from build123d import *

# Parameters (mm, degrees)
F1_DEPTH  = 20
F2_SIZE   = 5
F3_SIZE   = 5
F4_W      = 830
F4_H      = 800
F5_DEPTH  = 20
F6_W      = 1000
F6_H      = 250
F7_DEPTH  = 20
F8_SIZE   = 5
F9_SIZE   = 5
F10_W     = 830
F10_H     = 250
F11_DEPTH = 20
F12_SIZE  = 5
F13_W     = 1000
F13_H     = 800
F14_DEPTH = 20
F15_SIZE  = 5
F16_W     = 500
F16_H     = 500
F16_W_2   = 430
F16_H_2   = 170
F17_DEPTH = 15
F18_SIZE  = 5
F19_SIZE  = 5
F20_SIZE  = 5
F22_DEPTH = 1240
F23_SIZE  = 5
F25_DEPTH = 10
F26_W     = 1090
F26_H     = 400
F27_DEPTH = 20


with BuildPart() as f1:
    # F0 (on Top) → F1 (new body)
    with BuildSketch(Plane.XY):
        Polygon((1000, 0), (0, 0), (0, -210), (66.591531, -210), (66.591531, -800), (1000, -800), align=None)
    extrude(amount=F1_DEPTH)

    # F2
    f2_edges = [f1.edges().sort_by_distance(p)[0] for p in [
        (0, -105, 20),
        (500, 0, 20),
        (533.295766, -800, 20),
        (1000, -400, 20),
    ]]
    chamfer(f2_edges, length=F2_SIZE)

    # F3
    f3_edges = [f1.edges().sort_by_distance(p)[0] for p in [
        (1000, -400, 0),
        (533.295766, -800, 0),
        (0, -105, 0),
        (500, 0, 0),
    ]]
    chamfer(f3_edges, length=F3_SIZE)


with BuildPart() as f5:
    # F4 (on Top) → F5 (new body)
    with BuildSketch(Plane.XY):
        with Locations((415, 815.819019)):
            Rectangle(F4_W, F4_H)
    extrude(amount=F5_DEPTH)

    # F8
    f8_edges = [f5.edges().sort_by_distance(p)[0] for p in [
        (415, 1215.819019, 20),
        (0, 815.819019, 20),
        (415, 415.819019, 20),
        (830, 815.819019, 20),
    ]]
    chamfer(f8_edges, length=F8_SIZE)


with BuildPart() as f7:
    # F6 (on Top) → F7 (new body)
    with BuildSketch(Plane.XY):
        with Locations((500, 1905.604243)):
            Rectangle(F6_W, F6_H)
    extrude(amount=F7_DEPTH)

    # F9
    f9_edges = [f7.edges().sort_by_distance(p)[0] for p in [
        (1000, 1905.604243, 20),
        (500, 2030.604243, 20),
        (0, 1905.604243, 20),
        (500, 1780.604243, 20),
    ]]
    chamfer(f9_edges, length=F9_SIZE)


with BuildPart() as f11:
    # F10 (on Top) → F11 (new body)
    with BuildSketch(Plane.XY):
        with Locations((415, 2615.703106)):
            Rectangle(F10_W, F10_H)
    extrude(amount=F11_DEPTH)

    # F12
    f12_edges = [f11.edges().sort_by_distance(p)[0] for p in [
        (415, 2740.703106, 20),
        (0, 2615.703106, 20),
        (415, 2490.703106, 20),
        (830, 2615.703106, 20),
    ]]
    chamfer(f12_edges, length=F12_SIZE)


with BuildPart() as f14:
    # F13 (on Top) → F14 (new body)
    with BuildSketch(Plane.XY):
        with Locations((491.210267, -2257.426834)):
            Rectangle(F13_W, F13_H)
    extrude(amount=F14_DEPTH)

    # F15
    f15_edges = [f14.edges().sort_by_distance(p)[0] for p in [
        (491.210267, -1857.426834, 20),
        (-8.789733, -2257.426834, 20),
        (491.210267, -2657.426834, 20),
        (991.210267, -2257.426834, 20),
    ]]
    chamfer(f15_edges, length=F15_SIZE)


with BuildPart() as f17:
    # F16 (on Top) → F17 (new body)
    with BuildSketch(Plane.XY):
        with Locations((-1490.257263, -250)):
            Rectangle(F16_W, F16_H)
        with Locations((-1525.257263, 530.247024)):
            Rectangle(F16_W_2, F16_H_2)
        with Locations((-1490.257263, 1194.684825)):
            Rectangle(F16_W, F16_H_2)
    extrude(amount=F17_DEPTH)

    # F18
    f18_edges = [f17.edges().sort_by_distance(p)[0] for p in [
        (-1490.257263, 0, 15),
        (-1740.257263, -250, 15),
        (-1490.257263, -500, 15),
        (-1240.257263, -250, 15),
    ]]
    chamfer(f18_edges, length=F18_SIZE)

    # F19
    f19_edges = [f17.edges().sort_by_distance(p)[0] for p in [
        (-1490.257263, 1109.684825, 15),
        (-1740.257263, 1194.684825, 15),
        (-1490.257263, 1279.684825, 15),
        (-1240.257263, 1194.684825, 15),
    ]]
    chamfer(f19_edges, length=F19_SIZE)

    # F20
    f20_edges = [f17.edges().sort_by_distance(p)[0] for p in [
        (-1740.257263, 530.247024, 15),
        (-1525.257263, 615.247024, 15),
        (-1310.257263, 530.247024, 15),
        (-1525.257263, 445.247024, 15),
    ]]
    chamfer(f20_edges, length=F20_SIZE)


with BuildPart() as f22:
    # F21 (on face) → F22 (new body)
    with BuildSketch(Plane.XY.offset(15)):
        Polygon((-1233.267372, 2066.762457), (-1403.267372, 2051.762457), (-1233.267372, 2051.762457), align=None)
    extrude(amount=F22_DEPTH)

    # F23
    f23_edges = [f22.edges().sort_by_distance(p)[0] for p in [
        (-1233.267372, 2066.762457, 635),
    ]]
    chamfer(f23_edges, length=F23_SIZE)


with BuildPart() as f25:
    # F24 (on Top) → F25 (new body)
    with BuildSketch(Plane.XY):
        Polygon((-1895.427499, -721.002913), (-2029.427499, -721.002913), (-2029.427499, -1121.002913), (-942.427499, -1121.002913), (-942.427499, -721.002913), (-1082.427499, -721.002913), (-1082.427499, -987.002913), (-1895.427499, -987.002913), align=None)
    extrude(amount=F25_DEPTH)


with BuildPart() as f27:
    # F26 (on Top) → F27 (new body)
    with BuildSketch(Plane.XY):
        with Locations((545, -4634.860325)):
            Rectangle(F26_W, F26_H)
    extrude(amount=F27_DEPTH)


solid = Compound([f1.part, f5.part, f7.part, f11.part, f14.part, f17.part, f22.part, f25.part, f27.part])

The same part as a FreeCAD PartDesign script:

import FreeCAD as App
import Part
import Sketcher

V = App.Vector


def edges_at(feature, points):
    """Names of the edges that pass closest to the given points."""
    edges = feature.Shape.Edges
    near = lambda p: min(range(len(edges)), key=lambda i: edges[i].distToShape(Part.Vertex(*p))[0])
    return sorted({f"Edge{near(p) + 1}" for p in points})


def add_polygon(sketch, points):
    """Adds a closed chain of lines whose ends are joined by coincident constraints."""
    first, n = sketch.GeometryCount, len(points)
    for a, b in zip(points, points[1:] + points[:1]):
        sketch.addGeometry(Part.LineSegment(App.Vector(*a, 0), App.Vector(*b, 0)), False)
    for i in range(n):
        sketch.addConstraint(Sketcher.Constraint("Coincident", first + i, 2, first + (i + 1) % n, 1))

doc = App.newDocument("Part")
params = doc.addObject("Spreadsheet::Sheet", "Params")
for row, (alias, value) in enumerate([
    ("sketch1_width", "1000 mm"),
    ("sketch1_height", "210 mm"),
    ("sketch1_height2", "590 mm"),
    ("pad1_length", "20 mm"),
    ("chamfer_size", "5 mm"),
    ("chamfer2_size", "5 mm"),
    ("sketch2_width", "830 mm"),
    ("sketch2_height", "800 mm"),
    ("pad2_length", "20 mm"),
    ("chamfer3_size", "5 mm"),
    ("sketch3_width", "1000 mm"),
    ("sketch3_height", "250 mm"),
    ("pad3_length", "20 mm"),
    ("chamfer4_size", "5 mm"),
    ("sketch4_width", "830 mm"),
    ("sketch4_height", "250 mm"),
    ("pad4_length", "20 mm"),
    ("chamfer5_size", "5 mm"),
    ("sketch5_width", "1000 mm"),
    ("sketch5_height", "800 mm"),
    ("pad5_length", "20 mm"),
    ("chamfer6_size", "5 mm"),
    ("sketch6_width", "500 mm"),
    ("sketch6_width2", "430 mm"),
    ("sketch6_height", "170 mm"),
    ("pad6_length", "15 mm"),
    ("chamfer7_size", "5 mm"),
    ("chamfer8_size", "5 mm"),
    ("chamfer9_size", "5 mm"),
    ("sketch7_width", "170 mm"),
    ("sketch7_height", "15 mm"),
    ("pad7_length", "1240 mm"),
    ("chamfer10_size", "5 mm"),
    ("sketch8_width", "134 mm"),
    ("sketch8_width2", "1087 mm"),
    ("sketch8_width3", "140 mm"),
    ("sketch8_height", "400 mm"),
    ("sketch8_height2", "266 mm"),
    ("pad8_length", "10 mm"),
    ("sketch9_width", "1090 mm"),
    ("sketch9_height", "400 mm"),
    ("pad9_length", "20 mm"),
], start=1):
    params.set(f"A{row}", alias)
    params.set(f"B{row}", "=" + value)
    params.setAlias(f"B{row}", alias)

body = doc.addObject("PartDesign::Body", "Body")

sketch1 = body.newObject("Sketcher::SketchObject", "Sketch")
sketch1.AttachmentSupport = (doc.getObject("XY_Plane"), [""])
sketch1.MapMode = "FlatFace"
add_polygon(sketch1, [(1000, 0), (0, 0), (0, -210), (66.591531, -210), (66.591531, -800), (1000, -800)])
sketch1.addConstraint([
    Sketcher.Constraint("Horizontal", 0),
    Sketcher.Constraint("Vertical", 1),
    Sketcher.Constraint("Horizontal", 2),
    Sketcher.Constraint("Vertical", 3),
    Sketcher.Constraint("Horizontal", 4),
    Sketcher.Constraint("Vertical", 5),
    Sketcher.Constraint("Coincident", 0, 2, -1, 1),
    Sketcher.Constraint("DistanceX", 0, 2, 0, 1, 1000.0),
    Sketcher.Constraint("DistanceY", 1, 2, 1, 1, 210.0),
    Sketcher.Constraint("DistanceY", 3, 2, 3, 1, 590.0),
    Sketcher.Constraint("DistanceX", 2, 1, 2, 2, 66.591531),
])
sketch1.setExpression("Constraints[13]", "Params.sketch1_width")
sketch1.setExpression("Constraints[14]", "Params.sketch1_height")
sketch1.setExpression("Constraints[15]", "Params.sketch1_height2")
pad1 = body.newObject("PartDesign::Pad", "Pad")
pad1.Profile = sketch1
pad1.setExpression("Length", "Params.pad1_length")
doc.recompute()

chamfer = body.newObject("PartDesign::Chamfer", "Chamfer")
chamfer.Base = (pad1, edges_at(pad1, [
    (0, -105, 20),
    (500, 0, 20),
    (533.296, -800, 20),
    (1000, -400, 20),
]))
chamfer.setExpression("Size", "Params.chamfer_size")
doc.recompute()

chamfer2 = body.newObject("PartDesign::Chamfer", "Chamfer001")
chamfer2.Base = (chamfer, edges_at(chamfer, [
    (1000, -400, 0),
    (533.296, -800, 0),
    (0, -105, 0),
    (500, 0, 0),
]))
chamfer2.setExpression("Size", "Params.chamfer2_size")
body2 = doc.addObject("PartDesign::Body", "Body001")

sketch2 = body2.newObject("Sketcher::SketchObject", "Sketch001")
sketch2.AttachmentSupport = (doc.getObject("XY_Plane001"), [""])
sketch2.MapMode = "FlatFace"
add_polygon(sketch2, [(0, 1215.819019), (0, 415.819019), (830, 415.819019), (830, 1215.819019)])
sketch2.addConstraint([
    Sketcher.Constraint("Vertical", 0),
    Sketcher.Constraint("Horizontal", 1),
    Sketcher.Constraint("Vertical", 2),
    Sketcher.Constraint("Horizontal", 3),
    Sketcher.Constraint("PointOnObject", 0, 2, -2),
    Sketcher.Constraint("DistanceX", 1, 1, 1, 2, 830.0),
    Sketcher.Constraint("DistanceY", 0, 2, 0, 1, 800.0),
    Sketcher.Constraint("DistanceY", -1, 1, 0, 2, 415.819019),
])
sketch2.setExpression("Constraints[9]", "Params.sketch2_width")
sketch2.setExpression("Constraints[10]", "Params.sketch2_height")
pad2 = body2.newObject("PartDesign::Pad", "Pad001")
pad2.Profile = sketch2
pad2.setExpression("Length", "Params.pad2_length")
doc.recompute()

chamfer3 = body2.newObject("PartDesign::Chamfer", "Chamfer002")
chamfer3.Base = (pad2, edges_at(pad2, [
    (415, 1215.819, 20),
    (0, 815.819, 20),
    (415, 415.819, 20),
    (830, 815.819, 20),
]))
chamfer3.setExpression("Size", "Params.chamfer3_size")
body3 = doc.addObject("PartDesign::Body", "Body002")

sketch3 = body3.newObject("Sketcher::SketchObject", "Sketch002")
sketch3.AttachmentSupport = (doc.getObject("XY_Plane002"), [""])
sketch3.MapMode = "FlatFace"
add_polygon(sketch3, [(0, 2030.604243), (0, 1780.604243), (1000, 1780.604243), (1000, 2030.604243)])
sketch3.addConstraint([
    Sketcher.Constraint("Vertical", 0),
    Sketcher.Constraint("Horizontal", 1),
    Sketcher.Constraint("Vertical", 2),
    Sketcher.Constraint("Horizontal", 3),
    Sketcher.Constraint("PointOnObject", 0, 2, -2),
    Sketcher.Constraint("DistanceX", 1, 1, 1, 2, 1000.0),
    Sketcher.Constraint("DistanceY", 0, 2, 0, 1, 250.0),
    Sketcher.Constraint("DistanceY", -1, 1, 0, 2, 1780.604243),
])
sketch3.setExpression("Constraints[9]", "Params.sketch3_width")
sketch3.setExpression("Constraints[10]", "Params.sketch3_height")
pad3 = body3.newObject("PartDesign::Pad", "Pad002")
pad3.Profile = sketch3
pad3.setExpression("Length", "Params.pad3_length")
doc.recompute()

chamfer4 = body3.newObject("PartDesign::Chamfer", "Chamfer003")
chamfer4.Base = (pad3, edges_at(pad3, [
    (1000, 1905.604, 20),
    (500, 2030.604, 20),
    (0, 1905.604, 20),
    (500, 1780.604, 20),
]))
chamfer4.setExpression("Size", "Params.chamfer4_size")
body4 = doc.addObject("PartDesign::Body", "Body003")

sketch4 = body4.newObject("Sketcher::SketchObject", "Sketch003")
sketch4.AttachmentSupport = (doc.getObject("XY_Plane003"), [""])
sketch4.MapMode = "FlatFace"
add_polygon(sketch4, [(0, 2740.703106), (0, 2490.703106), (830, 2490.703106), (830, 2740.703106)])
sketch4.addConstraint([
    Sketcher.Constraint("Vertical", 0),
    Sketcher.Constraint("Horizontal", 1),
    Sketcher.Constraint("Vertical", 2),
    Sketcher.Constraint("Horizontal", 3),
    Sketcher.Constraint("PointOnObject", 0, 2, -2),
    Sketcher.Constraint("DistanceX", 1, 1, 1, 2, 830.0),
    Sketcher.Constraint("DistanceY", 0, 2, 0, 1, 250.0),
    Sketcher.Constraint("DistanceY", -1, 1, 0, 2, 2490.703106),
])
sketch4.setExpression("Constraints[9]", "Params.sketch4_width")
sketch4.setExpression("Constraints[10]", "Params.sketch4_height")
pad4 = body4.newObject("PartDesign::Pad", "Pad003")
pad4.Profile = sketch4
pad4.setExpression("Length", "Params.pad4_length")
doc.recompute()

chamfer5 = body4.newObject("PartDesign::Chamfer", "Chamfer004")
chamfer5.Base = (pad4, edges_at(pad4, [
    (415, 2740.703, 20),
    (0, 2615.703, 20),
    (415, 2490.703, 20),
    (830, 2615.703, 20),
]))
chamfer5.setExpression("Size", "Params.chamfer5_size")
body5 = doc.addObject("PartDesign::Body", "Body004")

sketch5 = body5.newObject("Sketcher::SketchObject", "Sketch004")
sketch5.AttachmentSupport = (doc.getObject("XY_Plane004"), [""])
sketch5.MapMode = "FlatFace"
add_polygon(sketch5, [(-8.789733, -1857.426834), (-8.789733, -2657.426834), (991.210267, -2657.426834), (991.210267, -1857.426834)])
sketch5.addConstraint([
    Sketcher.Constraint("Vertical", 0),
    Sketcher.Constraint("Horizontal", 1),
    Sketcher.Constraint("Vertical", 2),
    Sketcher.Constraint("Horizontal", 3),
    Sketcher.Constraint("DistanceX", 1, 1, 1, 2, 1000.0),
    Sketcher.Constraint("DistanceY", 0, 2, 0, 1, 800.0),
    Sketcher.Constraint("DistanceX", 0, 2, -1, 1, 8.789733),
    Sketcher.Constraint("DistanceY", 0, 2, -1, 1, 2657.426834),
])
sketch5.setExpression("Constraints[8]", "Params.sketch5_width")
sketch5.setExpression("Constraints[9]", "Params.sketch5_height")
pad5 = body5.newObject("PartDesign::Pad", "Pad004")
pad5.Profile = sketch5
pad5.setExpression("Length", "Params.pad5_length")
doc.recompute()

chamfer6 = body5.newObject("PartDesign::Chamfer", "Chamfer005")
chamfer6.Base = (pad5, edges_at(pad5, [
    (491.21, -1857.427, 20),
    (-8.79, -2257.427, 20),
    (491.21, -2657.427, 20),
    (991.21, -2257.427, 20),
]))
chamfer6.setExpression("Size", "Params.chamfer6_size")
body6 = doc.addObject("PartDesign::Body", "Body005")
body6.AllowCompound = True

sketch6 = body6.newObject("Sketcher::SketchObject", "Sketch005")
sketch6.AttachmentSupport = (doc.getObject("XY_Plane005"), [""])
sketch6.MapMode = "FlatFace"
add_polygon(sketch6, [(-1740.257263, 0), (-1740.257263, -500), (-1240.257263, -500), (-1240.257263, 0)])
add_polygon(sketch6, [(-1740.257263, 615.247024), (-1740.257263, 445.247024), (-1310.257263, 445.247024), (-1310.257263, 615.247024)])
add_polygon(sketch6, [(-1740.257263, 1279.684825), (-1740.257263, 1109.684825), (-1240.257263, 1109.684825), (-1240.257263, 1279.684825)])
sketch6.addConstraint([
    Sketcher.Constraint("Vertical", 0),
    Sketcher.Constraint("Horizontal", 1),
    Sketcher.Constraint("Vertical", 2),
    Sketcher.Constraint("Horizontal", 3),
    Sketcher.Constraint("Vertical", 4),
    Sketcher.Constraint("Horizontal", 5),
    Sketcher.Constraint("Vertical", 6),
    Sketcher.Constraint("Horizontal", 7),
    Sketcher.Constraint("Vertical", 8),
    Sketcher.Constraint("Horizontal", 9),
    Sketcher.Constraint("Vertical", 10),
    Sketcher.Constraint("Horizontal", 11),
    Sketcher.Constraint("PointOnObject", 2, 2, -1),
    Sketcher.Constraint("Vertical", 3, 2, 4, 2),
    Sketcher.Constraint("Vertical", 7, 2, 8, 2),
    Sketcher.Constraint("Vertical", 2, 2, 9, 2),
    Sketcher.Constraint("Equal", 11, 0),
    Sketcher.Constraint("Equal", 6, 8),
    Sketcher.Constraint("DistanceX", 1, 1, 1, 2, 500.0),
    Sketcher.Constraint("DistanceX", 5, 1, 5, 2, 430.0),
    Sketcher.Constraint("DistanceY", 4, 2, 4, 1, 170.0),
    Sketcher.Constraint("DistanceY", 7, 2, 8, 2, 494.437801),
    Sketcher.Constraint("DistanceX", 0, 2, -1, 1, 1740.257263),
    Sketcher.Constraint("DistanceY", -1, 1, 4, 2, 445.247024),
])
sketch6.setExpression("Constraints[30]", "Params.sketch6_width")
sketch6.setExpression("Constraints[31]", "Params.sketch6_width2")
sketch6.setExpression("Constraints[32]", "Params.sketch6_height")
pad6 = body6.newObject("PartDesign::Pad", "Pad005")
pad6.Profile = sketch6
pad6.setExpression("Length", "Params.pad6_length")
doc.recompute()

chamfer7 = body6.newObject("PartDesign::Chamfer", "Chamfer006")
chamfer7.Base = (pad6, edges_at(pad6, [
    (-1490.257, 0, 15),
    (-1740.257, -250, 15),
    (-1490.257, -500, 15),
    (-1240.257, -250, 15),
]))
chamfer7.setExpression("Size", "Params.chamfer7_size")
doc.recompute()

chamfer8 = body6.newObject("PartDesign::Chamfer", "Chamfer007")
chamfer8.Base = (chamfer7, edges_at(chamfer7, [
    (-1490.257, 1109.685, 15),
    (-1740.257, 1194.685, 15),
    (-1490.257, 1279.685, 15),
    (-1240.257, 1194.685, 15),
]))
chamfer8.setExpression("Size", "Params.chamfer8_size")
doc.recompute()

chamfer9 = body6.newObject("PartDesign::Chamfer", "Chamfer008")
chamfer9.Base = (chamfer8, edges_at(chamfer8, [
    (-1740.257, 530.247, 15),
    (-1525.257, 615.247, 15),
    (-1310.257, 530.247, 15),
    (-1525.257, 445.247, 15),
]))
chamfer9.setExpression("Size", "Params.chamfer9_size")
body7 = doc.addObject("PartDesign::Body", "Body006")

sketch7 = body7.newObject("Sketcher::SketchObject", "Sketch006")
sketch7.AttachmentSupport = (doc.getObject("XY_Plane006"), [""])
sketch7.MapMode = "FlatFace"
sketch7.AttachmentOffset = App.Placement(V(0, 0, 15), App.Rotation())
add_polygon(sketch7, [(-1233.267372, 2066.762457), (-1403.267372, 2051.762457), (-1233.267372, 2051.762457)])
sketch7.addConstraint([
    Sketcher.Constraint("Horizontal", 1),
    Sketcher.Constraint("Vertical", 2),
    Sketcher.Constraint("DistanceX", 1, 1, 1, 2, 170.0),
    Sketcher.Constraint("DistanceY", 2, 1, 2, 2, 15.0),
    Sketcher.Constraint("DistanceX", 0, 2, -1, 1, 1403.267372),
    Sketcher.Constraint("DistanceY", -1, 1, 0, 2, 2051.762457),
])
sketch7.setExpression("Constraints[5]", "Params.sketch7_width")
sketch7.setExpression("Constraints[6]", "Params.sketch7_height")
pad7 = body7.newObject("PartDesign::Pad", "Pad006")
pad7.Profile = sketch7
pad7.setExpression("Length", "Params.pad7_length")
doc.recompute()

chamfer10 = body7.newObject("PartDesign::Chamfer", "Chamfer009")
chamfer10.Base = (pad7, edges_at(pad7, [(-1233.267, 2066.762, 635)]))
chamfer10.setExpression("Size", "Params.chamfer10_size")
body8 = doc.addObject("PartDesign::Body", "Body007")

sketch8 = body8.newObject("Sketcher::SketchObject", "Sketch007")
sketch8.AttachmentSupport = (doc.getObject("XY_Plane007"), [""])
sketch8.MapMode = "FlatFace"
add_polygon(sketch8, [(-1895.427499, -721.002913), (-2029.427499, -721.002913), (-2029.427499, -1121.002913), (-942.427499, -1121.002913), (-942.427499, -721.002913), (-1082.427499, -721.002913), (-1082.427499, -987.002913), (-1895.427499, -987.002913)])
sketch8.addConstraint([
    Sketcher.Constraint("Horizontal", 0),
    Sketcher.Constraint("Vertical", 1),
    Sketcher.Constraint("Horizontal", 2),
    Sketcher.Constraint("Vertical", 3),
    Sketcher.Constraint("Horizontal", 4),
    Sketcher.Constraint("Vertical", 5),
    Sketcher.Constraint("Horizontal", 6),
    Sketcher.Constraint("Vertical", 7),
    Sketcher.Constraint("Horizontal", 0, 2, 3, 2),
    Sketcher.Constraint("DistanceX", 0, 2, 0, 1, 134.0),
    Sketcher.Constraint("DistanceX", 2, 1, 2, 2, 1087.0),
    Sketcher.Constraint("DistanceX", 4, 2, 4, 1, 140.0),
    Sketcher.Constraint("DistanceY", 1, 2, 1, 1, 400.0),
    Sketcher.Constraint("DistanceY", 5, 2, 5, 1, 266.0),
    Sketcher.Constraint("DistanceX", 0, 2, -1, 1, 2029.427499),
    Sketcher.Constraint("DistanceY", 0, 2, -1, 1, 721.002913),
])
sketch8.setExpression("Constraints[17]", "Params.sketch8_width")
sketch8.setExpression("Constraints[18]", "Params.sketch8_width2")
sketch8.setExpression("Constraints[19]", "Params.sketch8_width3")
sketch8.setExpression("Constraints[20]", "Params.sketch8_height")
sketch8.setExpression("Constraints[21]", "Params.sketch8_height2")
pad8 = body8.newObject("PartDesign::Pad", "Pad007")
pad8.Profile = sketch8
pad8.setExpression("Length", "Params.pad8_length")
body9 = doc.addObject("PartDesign::Body", "Body008")

sketch9 = body9.newObject("Sketcher::SketchObject", "Sketch008")
sketch9.AttachmentSupport = (doc.getObject("XY_Plane008"), [""])
sketch9.MapMode = "FlatFace"
add_polygon(sketch9, [(0, -4434.860325), (0, -4834.860325), (1090, -4834.860325), (1090, -4434.860325)])
sketch9.addConstraint([
    Sketcher.Constraint("Vertical", 0),
    Sketcher.Constraint("Horizontal", 1),
    Sketcher.Constraint("Vertical", 2),
    Sketcher.Constraint("Horizontal", 3),
    Sketcher.Constraint("PointOnObject", 0, 2, -2),
    Sketcher.Constraint("DistanceX", 1, 1, 1, 2, 1090.0),
    Sketcher.Constraint("DistanceY", 0, 2, 0, 1, 400.0),
    Sketcher.Constraint("DistanceY", 0, 2, -1, 1, 4834.860325),
])
sketch9.setExpression("Constraints[9]", "Params.sketch9_width")
sketch9.setExpression("Constraints[10]", "Params.sketch9_height")
pad9 = body9.newObject("PartDesign::Pad", "Pad008")
pad9.Profile = sketch9
pad9.setExpression("Length", "Params.pad9_length")

doc.recompute()
